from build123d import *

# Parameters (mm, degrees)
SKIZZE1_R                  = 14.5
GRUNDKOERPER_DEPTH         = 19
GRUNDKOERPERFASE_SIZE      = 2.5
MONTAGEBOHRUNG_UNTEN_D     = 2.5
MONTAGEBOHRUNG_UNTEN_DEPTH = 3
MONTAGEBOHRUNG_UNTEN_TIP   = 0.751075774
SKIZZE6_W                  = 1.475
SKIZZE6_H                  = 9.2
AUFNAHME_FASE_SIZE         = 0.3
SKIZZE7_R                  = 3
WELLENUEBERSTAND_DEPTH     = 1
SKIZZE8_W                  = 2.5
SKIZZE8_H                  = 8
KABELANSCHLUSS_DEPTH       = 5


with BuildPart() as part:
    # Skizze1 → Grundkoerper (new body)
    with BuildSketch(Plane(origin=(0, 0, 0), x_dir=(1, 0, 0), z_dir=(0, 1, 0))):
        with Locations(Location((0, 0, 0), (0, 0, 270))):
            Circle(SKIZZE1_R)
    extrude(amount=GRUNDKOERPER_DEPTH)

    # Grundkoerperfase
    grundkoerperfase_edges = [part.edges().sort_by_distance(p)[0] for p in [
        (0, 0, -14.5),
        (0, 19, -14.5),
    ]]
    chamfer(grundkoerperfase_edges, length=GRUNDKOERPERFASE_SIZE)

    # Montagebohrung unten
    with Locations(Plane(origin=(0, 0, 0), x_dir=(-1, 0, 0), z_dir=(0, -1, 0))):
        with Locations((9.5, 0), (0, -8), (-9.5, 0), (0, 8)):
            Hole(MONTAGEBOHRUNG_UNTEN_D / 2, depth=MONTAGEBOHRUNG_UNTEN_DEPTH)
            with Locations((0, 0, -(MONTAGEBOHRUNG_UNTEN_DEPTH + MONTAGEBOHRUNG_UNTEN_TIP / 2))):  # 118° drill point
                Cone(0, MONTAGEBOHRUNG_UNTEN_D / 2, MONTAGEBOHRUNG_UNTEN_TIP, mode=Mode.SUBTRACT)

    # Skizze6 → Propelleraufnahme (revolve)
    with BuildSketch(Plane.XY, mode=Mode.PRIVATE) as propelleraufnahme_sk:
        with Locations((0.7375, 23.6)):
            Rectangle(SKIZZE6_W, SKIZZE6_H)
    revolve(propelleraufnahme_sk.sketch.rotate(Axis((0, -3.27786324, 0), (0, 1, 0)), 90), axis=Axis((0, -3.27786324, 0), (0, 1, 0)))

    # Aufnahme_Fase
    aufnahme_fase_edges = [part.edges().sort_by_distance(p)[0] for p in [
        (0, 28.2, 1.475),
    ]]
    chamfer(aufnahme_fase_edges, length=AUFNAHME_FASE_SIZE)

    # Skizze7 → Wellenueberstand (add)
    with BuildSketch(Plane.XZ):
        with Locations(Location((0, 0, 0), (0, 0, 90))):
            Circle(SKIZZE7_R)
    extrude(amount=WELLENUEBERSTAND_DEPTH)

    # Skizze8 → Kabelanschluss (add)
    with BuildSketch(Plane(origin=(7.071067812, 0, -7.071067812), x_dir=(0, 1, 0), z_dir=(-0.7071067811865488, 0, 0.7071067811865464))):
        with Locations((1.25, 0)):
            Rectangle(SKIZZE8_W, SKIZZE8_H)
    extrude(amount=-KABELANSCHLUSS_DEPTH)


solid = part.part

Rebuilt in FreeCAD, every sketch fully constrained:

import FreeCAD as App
import Part
import Sketcher
from FreeCAD import Vector


def edges_at(feature, points):
    """Names of the edges that pass closest to the given points."""
    edges = feature.Shape.Edges
    near = lambda p: min(range(len(edges)), key=lambda i: edges[i].distToShape(Part.Vertex(*p))[0])
    return sorted({f"Edge{near(p) + 1}" for p in points})


def add_polygon(sketch, points):
    """Adds a closed chain of lines whose ends are joined by coincident constraints."""
    first, n = sketch.GeometryCount, len(points)
    for a, b in zip(points, points[1:] + points[:1]):
        sketch.addGeometry(Part.LineSegment(App.Vector(*a, 0), App.Vector(*b, 0)), False)
    for i in range(n):
        sketch.addConstraint(Sketcher.Constraint("Coincident", first + i, 2, first + (i + 1) % n, 1))

doc = App.newDocument("Part")
body = doc.addObject("PartDesign::Body", "Body")

# Sketch on XZ plane
sketch1 = body.newObject("Sketcher::SketchObject", "Sketch")
sketch1.AttachmentSupport = (doc.getObject("XZ_Plane"), [""])
sketch1.MapMode = "FlatFace"
sketch1.addGeometry(Part.Circle(Vector(0, 0, 0), Vector(0, 0, 1), 14), False)
sketch1.addConstraint(Sketcher.Constraint("Coincident", 0, 3, -1, 1))
sketch1.addConstraint(Sketcher.Constraint("Diameter", 0, 29.0))
pad1 = body.newObject("PartDesign::Pad", "Pad")
pad1.Profile = sketch1
pad1.Length = 19
pad1.Reversed = True
doc.recompute()

chamfer = body.newObject("PartDesign::Chamfer", "Chamfer")
chamfer.Base = (pad1, edges_at(pad1, [(0, 0, -14.5), (0, 19, -14.5)]))
chamfer.Size = 2.5

# Sketch on XZ plane
sketch2 = body.newObject("Sketcher::SketchObject", "Sketch001")
sketch2.AttachmentSupport = (doc.getObject("XZ_Plane"), [""])
sketch2.MapMode = "FlatFace"
sketch2.addGeometry(Part.Circle(Vector(-9.5, 0, 0), Vector(0, 0, 1), 1.2), False)
sketch2.addGeometry(Part.Circle(Vector(0, 8, 0), Vector(0, 0, 1), 1.2), False)
sketch2.addGeometry(Part.Circle(Vector(9.5, 0, 0), Vector(0, 0, 1), 1.2), False)
sketch2.addGeometry(Part.Circle(Vector(0, -8, 0), Vector(0, 0, 1), 1.2), False)
sketch2.addConstraint(Sketcher.Constraint("Equal", 0, 1))
sketch2.addConstraint(Sketcher.Constraint("Equal", 1, 2))
sketch2.addConstraint(Sketcher.Constraint("Equal", 2, 3))
sketch2.addConstraint(Sketcher.Constraint("Symmetric", 0, 3, 2, 3, -1, 1))
sketch2.addConstraint(Sketcher.Constraint("Symmetric", 1, 3, 3, 3, -1, 1))
sketch2.addConstraint(Sketcher.Constraint("PointOnObject", 0, 3, -1))
sketch2.addConstraint(Sketcher.Constraint("PointOnObject", 1, 3, -2))
sketch2.addConstraint(Sketcher.Constraint("Diameter", 0, 2.5))
sketch2.addConstraint(Sketcher.Constraint("DistanceY", -1, 1, 1, 3, 8.0))
sketch2.addConstraint(Sketcher.Constraint("DistanceX", 0, 3, 2, 3, 19.0))
doc.recompute()
hole = body.newObject("PartDesign::Hole", "Hole")
hole.Profile = sketch2
hole.ThreadType = "None"
hole.Diameter = 2.5
hole.DepthType = "Dimension"
hole.Depth = 3
hole.DrillPoint = "Angled"
hole.DrillPointAngle = 118

# Sketch on XY plane
sketch3 = body.newObject("Sketcher::SketchObject", "Sketch002")
sketch3.AttachmentSupport = (doc.getObject("XY_Plane"), [""])
sketch3.MapMode = "FlatFace"
add_polygon(sketch3, [(0, 28.2), (0, 19), (1.5, 19), (1.5, 28.2)])  # lines 0-3
sketch3.addConstraint(Sketcher.Constraint("Vertical", 0))
sketch3.addConstraint(Sketcher.Constraint("Horizontal", 1))
sketch3.addConstraint(Sketcher.Constraint("Vertical", 2))
sketch3.addConstraint(Sketcher.Constraint("Horizontal", 3))
sketch3.addConstraint(Sketcher.Constraint("PointOnObject", 0, 2, -2))
sketch3.addConstraint(Sketcher.Constraint("DistanceY", 0, 2, 0, 1, 9.2))
sketch3.addConstraint(Sketcher.Constraint("DistanceY", -1, 1, 0, 2, 19.0))
sketch3.addConstraint(Sketcher.Constraint("DistanceX", 1, 1, 1, 2, 1.475))
revolution = body.newObject("PartDesign::Revolution", "Revolution")
revolution.Profile = sketch3
revolution.ReferenceAxis = (sketch3, ["V_Axis"])
revolution.Angle = 360
doc.recompute()

chamfer2 = body.newObject("PartDesign::Chamfer", "Chamfer001")
chamfer2.Base = (revolution, edges_at(revolution, [(0, 28.2, 1.475)]))
chamfer2.Size = 0.3

# Sketch on XZ plane
sketch4 = body.newObject("Sketcher::SketchObject", "Sketch003")
sketch4.AttachmentSupport = (doc.getObject("XZ_Plane"), [""])
sketch4.MapMode = "FlatFace"
sketch4.addGeometry(Part.Circle(Vector(0, 0, 0), Vector(0, 0, 1), 3), False)
sketch4.addConstraint(Sketcher.Constraint("Coincident", 0, 3, -1, 1))
sketch4.addConstraint(Sketcher.Constraint("Diameter", 0, 6.0))
pad2 = body.newObject("PartDesign::Pad", "Pad001")
pad2.Profile = sketch4
pad2.Length = 1

# Sketch on an angled plane
sketch5 = body.newObject("Sketcher::SketchObject", "Sketch004")
sketch5.Placement = App.Placement(Vector(7.071068, 0, -7.071068), App.Rotation(Vector(0, 1, 0), Vector(-0.707106781, 0, -0.707106781), Vector(-0.707106781, 0, 0.707106781), "ZXY"))
add_polygon(sketch5, [(0, 4), (0, -4), (2.5, -4), (2.5, 4)])  # lines 0-3
sketch5.addConstraint(Sketcher.Constraint("Vertical", 0))
sketch5.addConstraint(Sketcher.Constraint("Horizontal", 1))
sketch5.addConstraint(Sketcher.Constraint("Vertical", 2))
sketch5.addConstraint(Sketcher.Constraint("Horizontal", 3))
sketch5.addConstraint(Sketcher.Constraint("Symmetric", 0, 2, 3, 2, -1, 1))
sketch5.addConstraint(Sketcher.Constraint("DistanceY", 0, 2, 0, 1, 8.0))
sketch5.addConstraint(Sketcher.Constraint("DistanceX", 1, 1, 1, 2, 2.5))
pad3 = body.newObject("PartDesign::Pad", "Pad002")
pad3.Profile = sketch5
pad3.Length = 5
pad3.Reversed = True

doc.recompute()
